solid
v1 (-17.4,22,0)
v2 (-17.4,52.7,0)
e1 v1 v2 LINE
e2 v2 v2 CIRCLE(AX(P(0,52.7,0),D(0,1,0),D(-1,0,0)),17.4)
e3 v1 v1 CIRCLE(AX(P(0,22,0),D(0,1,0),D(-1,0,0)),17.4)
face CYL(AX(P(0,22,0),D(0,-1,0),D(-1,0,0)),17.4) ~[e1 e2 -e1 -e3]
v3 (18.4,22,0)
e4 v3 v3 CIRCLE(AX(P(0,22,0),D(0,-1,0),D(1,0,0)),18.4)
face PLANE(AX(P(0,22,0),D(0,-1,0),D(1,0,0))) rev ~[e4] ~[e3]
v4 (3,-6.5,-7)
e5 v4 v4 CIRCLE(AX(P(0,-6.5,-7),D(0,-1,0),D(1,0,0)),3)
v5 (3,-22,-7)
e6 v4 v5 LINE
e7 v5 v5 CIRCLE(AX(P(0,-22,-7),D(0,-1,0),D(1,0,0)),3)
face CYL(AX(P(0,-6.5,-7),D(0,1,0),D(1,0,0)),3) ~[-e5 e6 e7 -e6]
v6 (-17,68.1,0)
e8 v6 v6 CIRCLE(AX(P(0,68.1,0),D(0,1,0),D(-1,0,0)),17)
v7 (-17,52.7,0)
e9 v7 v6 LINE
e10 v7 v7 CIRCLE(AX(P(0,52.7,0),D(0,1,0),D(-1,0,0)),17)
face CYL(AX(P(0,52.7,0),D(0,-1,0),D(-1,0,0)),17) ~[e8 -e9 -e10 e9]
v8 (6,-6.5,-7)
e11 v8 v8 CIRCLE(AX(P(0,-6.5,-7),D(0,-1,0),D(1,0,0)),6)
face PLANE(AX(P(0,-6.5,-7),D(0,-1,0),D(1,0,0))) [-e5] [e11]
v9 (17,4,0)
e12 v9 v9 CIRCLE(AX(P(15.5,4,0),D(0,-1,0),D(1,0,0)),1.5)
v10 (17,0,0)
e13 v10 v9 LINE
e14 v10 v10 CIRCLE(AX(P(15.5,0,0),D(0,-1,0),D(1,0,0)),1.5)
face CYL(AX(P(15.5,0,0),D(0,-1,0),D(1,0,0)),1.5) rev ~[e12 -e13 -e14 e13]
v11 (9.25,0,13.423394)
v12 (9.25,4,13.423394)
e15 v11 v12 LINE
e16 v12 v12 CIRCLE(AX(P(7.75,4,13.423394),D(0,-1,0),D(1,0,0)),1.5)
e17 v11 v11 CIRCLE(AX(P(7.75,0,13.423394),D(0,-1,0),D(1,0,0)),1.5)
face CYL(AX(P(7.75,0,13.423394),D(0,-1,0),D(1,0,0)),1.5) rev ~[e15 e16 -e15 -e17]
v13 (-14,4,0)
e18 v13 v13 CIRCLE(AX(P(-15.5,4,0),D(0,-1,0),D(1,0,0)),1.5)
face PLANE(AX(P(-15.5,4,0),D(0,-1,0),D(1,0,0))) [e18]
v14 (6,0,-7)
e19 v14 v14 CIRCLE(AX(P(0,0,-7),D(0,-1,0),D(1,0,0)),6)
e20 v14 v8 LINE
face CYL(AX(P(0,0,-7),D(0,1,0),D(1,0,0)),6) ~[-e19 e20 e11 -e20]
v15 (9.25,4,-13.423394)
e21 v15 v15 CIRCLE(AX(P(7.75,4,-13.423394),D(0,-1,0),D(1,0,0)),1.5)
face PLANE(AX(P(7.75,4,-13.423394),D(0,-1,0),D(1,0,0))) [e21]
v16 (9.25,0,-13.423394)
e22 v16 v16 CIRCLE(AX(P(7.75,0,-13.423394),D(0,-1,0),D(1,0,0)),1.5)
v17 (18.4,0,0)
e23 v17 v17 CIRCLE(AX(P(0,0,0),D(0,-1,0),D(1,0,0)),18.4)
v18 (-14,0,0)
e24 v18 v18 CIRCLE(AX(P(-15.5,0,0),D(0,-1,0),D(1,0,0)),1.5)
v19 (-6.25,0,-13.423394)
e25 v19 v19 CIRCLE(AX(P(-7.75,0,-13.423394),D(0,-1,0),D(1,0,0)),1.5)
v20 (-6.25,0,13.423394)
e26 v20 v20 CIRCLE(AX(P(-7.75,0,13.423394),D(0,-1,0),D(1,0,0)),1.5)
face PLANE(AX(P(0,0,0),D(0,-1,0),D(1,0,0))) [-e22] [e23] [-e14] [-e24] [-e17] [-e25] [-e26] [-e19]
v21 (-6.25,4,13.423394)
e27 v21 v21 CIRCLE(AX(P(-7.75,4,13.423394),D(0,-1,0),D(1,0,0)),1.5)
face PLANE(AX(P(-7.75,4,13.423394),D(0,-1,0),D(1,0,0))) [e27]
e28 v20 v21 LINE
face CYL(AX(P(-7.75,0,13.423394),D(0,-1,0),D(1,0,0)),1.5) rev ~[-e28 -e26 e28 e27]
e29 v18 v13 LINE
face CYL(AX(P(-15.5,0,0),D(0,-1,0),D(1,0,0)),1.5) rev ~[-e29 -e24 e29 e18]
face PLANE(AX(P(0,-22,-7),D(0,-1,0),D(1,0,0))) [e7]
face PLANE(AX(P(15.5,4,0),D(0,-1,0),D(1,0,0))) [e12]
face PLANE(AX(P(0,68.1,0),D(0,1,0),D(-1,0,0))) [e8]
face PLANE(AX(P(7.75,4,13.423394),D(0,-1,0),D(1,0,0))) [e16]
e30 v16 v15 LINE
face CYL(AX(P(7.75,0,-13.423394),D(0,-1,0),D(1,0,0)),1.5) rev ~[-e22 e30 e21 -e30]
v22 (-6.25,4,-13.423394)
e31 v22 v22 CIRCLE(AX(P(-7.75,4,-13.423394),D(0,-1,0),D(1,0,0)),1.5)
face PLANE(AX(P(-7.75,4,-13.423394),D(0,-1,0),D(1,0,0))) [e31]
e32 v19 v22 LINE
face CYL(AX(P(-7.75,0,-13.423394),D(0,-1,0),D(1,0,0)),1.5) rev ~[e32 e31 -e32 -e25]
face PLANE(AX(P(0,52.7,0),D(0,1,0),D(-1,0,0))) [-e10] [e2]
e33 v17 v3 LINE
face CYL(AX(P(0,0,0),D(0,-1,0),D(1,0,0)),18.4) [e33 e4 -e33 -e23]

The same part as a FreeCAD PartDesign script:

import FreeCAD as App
import Part
import Sketcher

doc = App.newDocument("Part")
body = doc.addObject("PartDesign::Body", "Body")

# Sketch on XZ plane
sketch1 = doc.addObject("Sketcher::SketchObject", "Sketch")
body.addObject(sketch1)
sketch1.AttachmentSupport = (doc.XZ_Plane, [""])
sketch1.MapMode = "FlatFace"
sketch1.addGeometry(Part.Circle(App.Vector(0, 0, 0), App.Vector(0, 0, 1), 18), False)
sketch1.addConstraint([
    Sketcher.Constraint("Coincident", 0, 3, -1, 1),
    Sketcher.Constraint("Diameter", 0, 36.8),
])
pad1 = doc.addObject("PartDesign::Pad", "Pad")
body.addObject(pad1)
pad1.Profile = sketch1
pad1.Length = 22
pad1.Reversed = True

# Sketch on XZ plane
sketch2 = doc.addObject("Sketcher::SketchObject", "Sketch001")
body.addObject(sketch2)
sketch2.AttachmentSupport = (doc.XZ_Plane, [""])
sketch2.MapMode = "FlatFace"
sketch2.AttachmentOffset = App.Placement(App.Vector(0, 0, -22), App.Rotation())
sketch2.addGeometry(Part.Circle(App.Vector(0, 0, 0), App.Vector(0, 0, 1), 17), False)
sketch2.addConstraint([
    Sketcher.Constraint("Coincident", 0, 3, -1, 1),
    Sketcher.Constraint("Diameter", 0, 34.8),
])
pad2 = doc.addObject("PartDesign::Pad", "Pad001")
body.addObject(pad2)
pad2.Profile = sketch2
pad2.Length = 30.7
pad2.Reversed = True

# Sketch on XZ plane
sketch3 = doc.addObject("Sketcher::SketchObject", "Sketch002")
body.addObject(sketch3)
sketch3.AttachmentSupport = (doc.XZ_Plane, [""])
sketch3.MapMode = "FlatFace"
sketch3.AttachmentOffset = App.Placement(App.Vector(0, 0, -52.7), App.Rotation())
sketch3.addGeometry(Part.Circle(App.Vector(0, 0, 0), App.Vector(0, 0, 1), 17), False)
sketch3.addConstraint([
    Sketcher.Constraint("Coincident", 0, 3, -1, 1),
    Sketcher.Constraint("Diameter", 0, 34.0),
])
pad3 = doc.addObject("PartDesign::Pad", "Pad002")
body.addObject(pad3)
pad3.Profile = sketch3
pad3.Length = 15.4
pad3.Reversed = True

# Sketch on XZ plane
sketch4 = doc.addObject("Sketcher::SketchObject", "Sketch003")
body.addObject(sketch4)
sketch4.AttachmentSupport = (doc.XZ_Plane, [""])
sketch4.MapMode = "FlatFace"
sketch4.addGeometry(Part.Circle(App.Vector(0, -7, 0), App.Vector(0, 0, 1), 6), False)
sketch4.addConstraint([
    Sketcher.Constraint("PointOnObject", 0, 3, -2),
    Sketcher.Constraint("Diameter", 0, 12.0),
    Sketcher.Constraint("DistanceY", 0, 3, -1, 1, 7.0),
])
pad4 = doc.addObject("PartDesign::Pad", "Pad003")
body.addObject(pad4)
pad4.Profile = sketch4
pad4.Length = 6.5

# Sketch on XZ plane
sketch5 = doc.addObject("Sketcher::SketchObject", "Sketch004")
body.addObject(sketch5)
sketch5.AttachmentSupport = (doc.XZ_Plane, [""])
sketch5.MapMode = "FlatFace"
sketch5.AttachmentOffset = App.Placement(App.Vector(0, 0, 6.5), App.Rotation())
sketch5.addGeometry(Part.Circle(App.Vector(0, -7, 0), App.Vector(0, 0, 1), 3), False)
sketch5.addConstraint([
    Sketcher.Constraint("PointOnObject", 0, 3, -2),
    Sketcher.Constraint("Diameter", 0, 6.0),
    Sketcher.Constraint("DistanceY", 0, 3, -1, 1, 7.0),
])
pad5 = doc.addObject("PartDesign::Pad", "Pad004")
body.addObject(pad5)
pad5.Profile = sketch5
pad5.Length = 15.5

# Sketch on XZ plane
sketch6 = doc.addObject("Sketcher::SketchObject", "Sketch005")
body.addObject(sketch6)
sketch6.AttachmentSupport = (doc.XZ_Plane, [""])
sketch6.MapMode = "FlatFace"
sketch6.addGeometry([
    Part.Circle(App.Vector(-15.5, 0, 0), App.Vector(0, 0, 1), 1.5),  # 0
    Part.Circle(App.Vector(-7.8, 13.4, 0), App.Vector(0, 0, 1), 1.5),  # 1
    Part.Circle(App.Vector(7.8, 13.4, 0), App.Vector(0, 0, 1), 1.5),  # 2
    Part.Circle(App.Vector(15.5, 0, 0), App.Vector(0, 0, 1), 1.5),  # 3
    Part.Circle(App.Vector(-7.8, -13.4, 0), App.Vector(0, 0, 1), 1.5),  # 4
    Part.Circle(App.Vector(7.8, -13.4, 0), App.Vector(0, 0, 1), 1.5),  # 5
], False)
sketch6.addConstraint([
    Sketcher.Constraint("Equal", 0, 1),
    Sketcher.Constraint("Equal", 1, 2),
    Sketcher.Constraint("Equal", 2, 3),
    Sketcher.Constraint("Equal", 3, 4),
    Sketcher.Constraint("Equal", 4, 5),
    Sketcher.Constraint("Symmetric", 0, 3, 3, 3, -1, 1),
    Sketcher.Constraint("Symmetric", 2, 3, 4, 3, -1, 1),
    Sketcher.Constraint("Symmetric", 1, 3, 5, 3, -1, 1),
    Sketcher.Constraint("Symmetric", 1, 3, 2, 3, -2),
    Sketcher.Constraint("PointOnObject", 0, 3, -1),
    Sketcher.Constraint("Diameter", 0, 3.0),
    Sketcher.Constraint("DistanceX", 0, 3, 3, 3, 31.0),
    Sketcher.Constraint("DistanceX", 1, 3, 2, 3, 15.5),
    Sketcher.Constraint("DistanceY", 4, 3, 1, 3, 26.846788),
])
pocket1 = doc.addObject("PartDesign::Pocket", "Pocket")
body.addObject(pocket1)
pocket1.Profile = sketch6
pocket1.Length = 4

doc.recompute()
